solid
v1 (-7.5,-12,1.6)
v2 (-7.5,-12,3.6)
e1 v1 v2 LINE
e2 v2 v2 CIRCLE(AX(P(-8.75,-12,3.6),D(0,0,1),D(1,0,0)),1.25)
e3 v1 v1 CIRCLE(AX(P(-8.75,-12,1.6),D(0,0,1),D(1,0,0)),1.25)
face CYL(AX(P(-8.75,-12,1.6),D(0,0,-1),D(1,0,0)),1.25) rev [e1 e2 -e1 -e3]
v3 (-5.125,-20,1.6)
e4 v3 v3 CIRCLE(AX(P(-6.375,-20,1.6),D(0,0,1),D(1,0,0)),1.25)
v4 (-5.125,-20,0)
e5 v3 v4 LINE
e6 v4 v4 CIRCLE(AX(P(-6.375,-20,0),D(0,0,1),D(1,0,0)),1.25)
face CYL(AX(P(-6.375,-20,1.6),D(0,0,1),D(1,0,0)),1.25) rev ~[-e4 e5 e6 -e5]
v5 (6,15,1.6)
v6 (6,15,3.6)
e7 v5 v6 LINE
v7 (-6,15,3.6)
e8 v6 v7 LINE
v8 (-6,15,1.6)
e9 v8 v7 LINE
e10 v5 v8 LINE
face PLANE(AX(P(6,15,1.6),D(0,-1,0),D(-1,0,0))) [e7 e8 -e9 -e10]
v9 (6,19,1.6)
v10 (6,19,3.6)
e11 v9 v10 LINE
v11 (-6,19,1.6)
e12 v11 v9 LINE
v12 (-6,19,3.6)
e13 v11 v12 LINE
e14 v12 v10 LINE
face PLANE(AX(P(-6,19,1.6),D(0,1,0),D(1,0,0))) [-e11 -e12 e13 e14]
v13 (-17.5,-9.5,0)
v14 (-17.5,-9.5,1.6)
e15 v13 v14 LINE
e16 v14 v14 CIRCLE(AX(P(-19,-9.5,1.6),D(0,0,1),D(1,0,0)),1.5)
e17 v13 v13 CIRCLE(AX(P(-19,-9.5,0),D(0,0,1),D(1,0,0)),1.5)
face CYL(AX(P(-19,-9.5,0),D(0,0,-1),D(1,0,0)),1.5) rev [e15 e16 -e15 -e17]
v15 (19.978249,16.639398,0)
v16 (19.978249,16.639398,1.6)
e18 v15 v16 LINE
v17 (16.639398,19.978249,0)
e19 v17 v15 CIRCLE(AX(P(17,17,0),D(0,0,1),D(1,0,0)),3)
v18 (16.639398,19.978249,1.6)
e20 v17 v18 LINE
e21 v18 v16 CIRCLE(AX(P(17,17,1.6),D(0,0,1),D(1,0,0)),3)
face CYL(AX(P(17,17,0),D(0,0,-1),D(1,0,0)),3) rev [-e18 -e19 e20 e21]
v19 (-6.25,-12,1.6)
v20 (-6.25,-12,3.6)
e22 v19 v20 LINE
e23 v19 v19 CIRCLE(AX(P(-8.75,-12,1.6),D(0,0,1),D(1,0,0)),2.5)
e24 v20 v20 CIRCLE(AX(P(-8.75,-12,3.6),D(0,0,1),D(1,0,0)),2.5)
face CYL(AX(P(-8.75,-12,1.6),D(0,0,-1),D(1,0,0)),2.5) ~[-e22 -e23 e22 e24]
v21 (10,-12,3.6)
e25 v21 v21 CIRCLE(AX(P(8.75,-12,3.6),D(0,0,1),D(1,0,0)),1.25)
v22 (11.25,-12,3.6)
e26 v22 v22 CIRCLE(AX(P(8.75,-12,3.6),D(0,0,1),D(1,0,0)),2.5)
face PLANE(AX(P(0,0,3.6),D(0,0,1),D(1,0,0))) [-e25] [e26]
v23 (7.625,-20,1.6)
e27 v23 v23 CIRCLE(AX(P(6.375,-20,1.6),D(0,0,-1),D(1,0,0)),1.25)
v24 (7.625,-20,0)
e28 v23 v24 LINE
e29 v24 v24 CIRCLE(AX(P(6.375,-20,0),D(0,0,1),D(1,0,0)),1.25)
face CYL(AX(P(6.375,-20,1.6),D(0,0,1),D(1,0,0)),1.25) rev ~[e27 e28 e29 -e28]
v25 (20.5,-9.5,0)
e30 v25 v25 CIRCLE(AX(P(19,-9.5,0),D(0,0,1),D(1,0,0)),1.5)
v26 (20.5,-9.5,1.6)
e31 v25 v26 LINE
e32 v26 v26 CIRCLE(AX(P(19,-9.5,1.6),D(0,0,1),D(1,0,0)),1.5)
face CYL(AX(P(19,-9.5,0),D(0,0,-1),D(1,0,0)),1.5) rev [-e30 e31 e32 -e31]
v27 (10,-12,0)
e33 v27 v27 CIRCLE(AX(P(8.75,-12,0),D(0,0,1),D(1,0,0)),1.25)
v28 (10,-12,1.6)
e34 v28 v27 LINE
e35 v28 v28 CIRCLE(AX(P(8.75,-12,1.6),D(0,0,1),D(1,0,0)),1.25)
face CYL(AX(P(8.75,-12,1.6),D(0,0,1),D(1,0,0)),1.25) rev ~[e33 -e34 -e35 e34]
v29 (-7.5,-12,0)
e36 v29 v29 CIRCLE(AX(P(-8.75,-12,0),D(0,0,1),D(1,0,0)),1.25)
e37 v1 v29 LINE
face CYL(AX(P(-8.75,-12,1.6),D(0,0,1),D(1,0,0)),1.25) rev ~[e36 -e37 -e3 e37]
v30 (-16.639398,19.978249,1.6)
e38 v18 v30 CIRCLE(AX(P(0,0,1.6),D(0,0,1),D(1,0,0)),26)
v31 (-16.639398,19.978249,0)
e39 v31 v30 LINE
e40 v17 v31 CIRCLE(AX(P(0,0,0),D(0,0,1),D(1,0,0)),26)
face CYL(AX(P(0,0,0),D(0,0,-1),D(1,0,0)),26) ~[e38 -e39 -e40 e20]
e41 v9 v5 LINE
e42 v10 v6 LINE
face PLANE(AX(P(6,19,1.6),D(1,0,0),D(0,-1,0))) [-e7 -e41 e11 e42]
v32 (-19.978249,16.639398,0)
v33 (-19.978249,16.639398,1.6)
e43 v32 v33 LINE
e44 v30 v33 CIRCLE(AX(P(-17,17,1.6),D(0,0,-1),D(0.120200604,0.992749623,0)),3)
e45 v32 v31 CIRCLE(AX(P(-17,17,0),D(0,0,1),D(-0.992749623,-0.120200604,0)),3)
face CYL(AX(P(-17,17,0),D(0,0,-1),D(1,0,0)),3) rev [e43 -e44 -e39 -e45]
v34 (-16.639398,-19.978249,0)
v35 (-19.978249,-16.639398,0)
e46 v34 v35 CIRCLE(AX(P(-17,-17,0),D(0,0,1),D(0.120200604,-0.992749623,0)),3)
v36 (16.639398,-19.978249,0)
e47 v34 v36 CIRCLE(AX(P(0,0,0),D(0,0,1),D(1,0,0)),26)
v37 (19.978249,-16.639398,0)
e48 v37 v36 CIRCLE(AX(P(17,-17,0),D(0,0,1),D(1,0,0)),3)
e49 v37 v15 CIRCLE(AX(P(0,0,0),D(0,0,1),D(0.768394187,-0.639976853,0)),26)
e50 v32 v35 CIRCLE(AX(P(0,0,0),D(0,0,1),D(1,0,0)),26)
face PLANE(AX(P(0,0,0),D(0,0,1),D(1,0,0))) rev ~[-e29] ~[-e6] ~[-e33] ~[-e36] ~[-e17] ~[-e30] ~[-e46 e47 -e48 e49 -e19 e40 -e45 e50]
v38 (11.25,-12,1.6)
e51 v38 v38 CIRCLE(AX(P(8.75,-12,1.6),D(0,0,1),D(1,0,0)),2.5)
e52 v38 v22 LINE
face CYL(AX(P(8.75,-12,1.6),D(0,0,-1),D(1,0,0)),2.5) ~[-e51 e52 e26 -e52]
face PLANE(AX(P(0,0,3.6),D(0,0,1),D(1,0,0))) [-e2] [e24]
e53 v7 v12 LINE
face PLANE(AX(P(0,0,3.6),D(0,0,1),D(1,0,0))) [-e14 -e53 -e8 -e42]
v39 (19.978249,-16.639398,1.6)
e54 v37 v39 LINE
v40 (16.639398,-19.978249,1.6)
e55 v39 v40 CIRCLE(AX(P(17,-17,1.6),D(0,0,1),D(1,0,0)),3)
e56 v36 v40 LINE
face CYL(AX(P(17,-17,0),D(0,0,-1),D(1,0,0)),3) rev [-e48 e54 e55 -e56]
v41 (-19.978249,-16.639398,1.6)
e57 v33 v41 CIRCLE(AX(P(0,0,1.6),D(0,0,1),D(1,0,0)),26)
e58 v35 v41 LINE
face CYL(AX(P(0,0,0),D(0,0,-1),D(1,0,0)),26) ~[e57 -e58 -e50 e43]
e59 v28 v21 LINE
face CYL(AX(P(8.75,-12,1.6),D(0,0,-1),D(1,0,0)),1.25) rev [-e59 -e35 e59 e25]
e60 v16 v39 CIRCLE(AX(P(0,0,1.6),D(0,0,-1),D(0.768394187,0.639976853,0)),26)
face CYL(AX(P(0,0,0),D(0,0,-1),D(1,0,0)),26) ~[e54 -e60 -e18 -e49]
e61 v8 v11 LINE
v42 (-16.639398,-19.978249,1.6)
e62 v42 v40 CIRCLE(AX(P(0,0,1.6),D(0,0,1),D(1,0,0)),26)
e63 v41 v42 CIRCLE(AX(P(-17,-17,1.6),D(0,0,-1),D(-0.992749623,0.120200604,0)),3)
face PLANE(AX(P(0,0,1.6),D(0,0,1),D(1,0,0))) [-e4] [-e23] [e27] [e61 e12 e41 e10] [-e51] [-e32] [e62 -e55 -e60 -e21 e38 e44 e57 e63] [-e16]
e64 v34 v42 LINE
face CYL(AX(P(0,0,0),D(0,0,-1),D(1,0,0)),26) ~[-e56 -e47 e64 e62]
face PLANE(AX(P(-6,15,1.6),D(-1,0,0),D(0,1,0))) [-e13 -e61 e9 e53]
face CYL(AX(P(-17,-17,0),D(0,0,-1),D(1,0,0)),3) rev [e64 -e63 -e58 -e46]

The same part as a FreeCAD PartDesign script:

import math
import FreeCAD as App
import Part
import Sketcher
Q = App.Units.Quantity


def add_polygon(sketch, points):
    """Adds a closed chain of lines whose ends are joined by coincident constraints."""
    first, n = sketch.GeometryCount, len(points)
    for a, b in zip(points, points[1:] + points[:1]):
        sketch.addGeometry(Part.LineSegment(App.Vector(*a, 0), App.Vector(*b, 0)), False)
    for i in range(n):
        sketch.addConstraint(Sketcher.Constraint("Coincident", first + i, 2, first + (i + 1) % n, 1))

doc = App.newDocument("Part")
body = doc.addObject("PartDesign::Body", "Body")

sketch1 = body.newObject("Sketcher::SketchObject", "Sketch")
sketch1.AttachmentSupport = (doc.getObject("XY_Plane"), [""])
sketch1.MapMode = "FlatFace"
sketch1.addGeometry([
    Part.ArcOfCircle(Part.Circle(App.Vector(17, -17, 0), App.Vector(0, 0, 1), 3), math.radians(6.90368), math.radians(263.09632)),
    Part.ArcOfCircle(Part.Circle(App.Vector(0, 0, 0), App.Vector(0, 0, 1), 26), math.radians(-39.790094), math.radians(39.790094)),
    Part.ArcOfCircle(Part.Circle(App.Vector(17, 17, 0), App.Vector(0, 0, 1), 3), math.radians(96.90368), math.radians(353.09632)),
    Part.ArcOfCircle(Part.Circle(App.Vector(0, 0, 0), App.Vector(0, 0, 1), 26), math.radians(50.209906), math.radians(129.790094)),
    Part.ArcOfCircle(Part.Circle(App.Vector(-17, 17, 0), App.Vector(0, 0, 1), 3), math.radians(-173.09632), math.radians(83.09632)),
    Part.ArcOfCircle(Part.Circle(App.Vector(0, 0, 0), App.Vector(0, 0, 1), 26), math.radians(140.209906), math.radians(219.790094)),
    Part.ArcOfCircle(Part.Circle(App.Vector(-17, -17, 0), App.Vector(0, 0, 1), 3), math.radians(-83.09632), math.radians(173.09632)),
    Part.ArcOfCircle(Part.Circle(App.Vector(0, 0, 0), App.Vector(0, 0, 1), 26), math.radians(-129.790094), math.radians(-50.209906)),
    Part.Circle(App.Vector(-19, -9.5, 0), App.Vector(0, 0, 1), 1.5),
    Part.Circle(App.Vector(19, -9.5, 0), App.Vector(0, 0, 1), 1.5),
], False)
sketch1.addConstraint([
    Sketcher.Constraint("Coincident", 0, 1, 1, 1),
    Sketcher.Constraint("Coincident", 1, 2, 2, 2),
    Sketcher.Constraint("Coincident", 2, 1, 3, 1),
    Sketcher.Constraint("Coincident", 3, 2, 4, 2),
    Sketcher.Constraint("Coincident", 4, 1, 5, 1),
    Sketcher.Constraint("Coincident", 5, 2, 6, 2),
    Sketcher.Constraint("Coincident", 6, 1, 7, 1),
    Sketcher.Constraint("Coincident", 7, 2, 0, 2),
    Sketcher.Constraint("Coincident", 1, 3, -1, 1),
    Sketcher.Constraint("Coincident", 3, 3, -1, 1),
    Sketcher.Constraint("Coincident", 5, 3, -1, 1),
    Sketcher.Constraint("Coincident", 7, 3, -1, 1),
    Sketcher.Constraint("Equal", 0, 2),
    Sketcher.Constraint("Equal", 1, 3),
    Sketcher.Constraint("Equal", 2, 4),
    Sketcher.Constraint("Equal", 3, 5),
    Sketcher.Constraint("Equal", 4, 6),
    Sketcher.Constraint("Equal", 5, 7),
    Sketcher.Constraint("Equal", 8, 9),
    Sketcher.Constraint("Symmetric", 0, 3, 4, 3, -1, 1),
    Sketcher.Constraint("Symmetric", 2, 3, 6, 3, -1, 1),
    Sketcher.Constraint("Symmetric", 2, 3, 4, 3, -2),
    Sketcher.Constraint("Symmetric", 8, 3, 9, 3, -2),
    Sketcher.Constraint("Diameter", 8, Q("3 mm")),
    Sketcher.Constraint("Radius", 0, Q("3 mm")),
    Sketcher.Constraint("Radius", 1, Q("26 mm")),
    Sketcher.Constraint("DistanceY", 0, 3, 2, 3, Q("34 mm")),
    Sketcher.Constraint("DistanceX", 4, 3, 2, 3, Q("34 mm")),
    Sketcher.Constraint("DistanceY", 6, 3, 8, 3, Q("7.5 mm")),
    Sketcher.Constraint("DistanceX", 8, 3, -1, 1, Q("19 mm")),
])
pad1 = body.newObject("PartDesign::Pad", "Pad")
pad1.Profile = sketch1
pad1.Length = 1.6

sketch2 = body.newObject("Sketcher::SketchObject", "Sketch001")
sketch2.AttachmentSupport = (doc.getObject("XY_Plane"), [""])
sketch2.MapMode = "FlatFace"
sketch2.AttachmentOffset = App.Placement(App.Vector(0, 0, 1.6), App.Rotation())
add_polygon(sketch2, [(6, 15), (6, 19), (-6, 19), (-6, 15)])
sketch2.addGeometry(Part.Circle(App.Vector(8.75, -12, 0), App.Vector(0, 0, 1), 2.5), False)
sketch2.addGeometry(Part.Circle(App.Vector(8.75, -12, 0), App.Vector(0, 0, 1), 1.25), False)
sketch2.addGeometry(Part.Circle(App.Vector(-8.75, -12, 0), App.Vector(0, 0, 1), 2.5), False)
sketch2.addGeometry(Part.Circle(App.Vector(-8.75, -12, 0), App.Vector(0, 0, 1), 1.25), False)
sketch2.addConstraint([
    Sketcher.Constraint("Vertical", 0),
    Sketcher.Constraint("Horizontal", 1),
    Sketcher.Constraint("Vertical", 2),
    Sketcher.Constraint("Horizontal", 3),
    Sketcher.Constraint("Coincident", 5, 3, 4, 3),
    Sketcher.Constraint("Coincident", 7, 3, 6, 3),
    Sketcher.Constraint("Equal", 4, 6),
    Sketcher.Constraint("Equal", 5, 7),
    Sketcher.Constraint("Symmetric", 4, 3, 6, 3, -2),
    Sketcher.Constraint("Diameter", 4, Q("5 mm")),
    Sketcher.Constraint("Diameter", 5, Q("2.5 mm")),
    Sketcher.Constraint("DistanceX", 1, 2, 1, 1, Q("12 mm")),
    Sketcher.Constraint("DistanceY", 0, 1, 0, 2, Q("4 mm")),
    Sketcher.Constraint("DistanceY", 4, 3, -1, 1, Q("12 mm")),
    Sketcher.Constraint("DistanceX", 6, 3, 4, 3, Q("17.5 mm")),
    Sketcher.Constraint("DistanceX", -1, 1, 0, 2, Q("6 mm")),
    Sketcher.Constraint("DistanceY", -1, 1, 0, 2, Q("19 mm")),
])
pad2 = body.newObject("PartDesign::Pad", "Pad001")
pad2.Profile = sketch2
pad2.Length = 2

sketch3 = body.newObject("Sketcher::SketchObject", "Sketch002")
sketch3.AttachmentSupport = (doc.getObject("XY_Plane"), [""])
sketch3.MapMode = "FlatFace"
sketch3.AttachmentOffset = App.Placement(App.Vector(0, 0, 1.6), App.Rotation())
sketch3.addGeometry([
    Part.Circle(App.Vector(8.75, -12, 0), App.Vector(0, 0, 1), 1.25),
    Part.Circle(App.Vector(-8.75, -12, 0), App.Vector(0, 0, 1), 1.25),
], False)
sketch3.addConstraint([
    Sketcher.Constraint("Equal", 0, 1),
    Sketcher.Constraint("Symmetric", 0, 3, 1, 3, -2),
    Sketcher.Constraint("Diameter", 0, Q("2.5 mm")),
    Sketcher.Constraint("DistanceY", 0, 3, -1, 1, Q("12 mm")),
    Sketcher.Constraint("DistanceX", 1, 3, 0, 3, Q("17.5 mm")),
])
pocket1 = body.newObject("PartDesign::Pocket", "Pocket")
pocket1.Profile = sketch3
pocket1.Length = 2

sketch4 = body.newObject("Sketcher::SketchObject", "Sketch003")
sketch4.AttachmentSupport = (doc.getObject("XY_Plane"), [""])
sketch4.MapMode = "FlatFace"
sketch4.AttachmentOffset = App.Placement(App.Vector(0, 0, 1.6), App.Rotation())
sketch4.addGeometry([
    Part.Circle(App.Vector(6.375, -20, 0), App.Vector(0, 0, 1), 1.25),
    Part.Circle(App.Vector(-6.375, -20, 0), App.Vector(0, 0, 1), 1.25),
], False)
sketch4.addConstraint([
    Sketcher.Constraint("Equal", 0, 1),
    Sketcher.Constraint("Symmetric", 0, 3, 1, 3, -2),
    Sketcher.Constraint("Diameter", 0, Q("2.5 mm")),
    Sketcher.Constraint("DistanceX", 1, 3, 0, 3, Q("12.75 mm")),
    Sketcher.Constraint("DistanceY", 0, 3, -1, 1, Q("20 mm")),
])
pocket2 = body.newObject("PartDesign::Pocket", "Pocket001")
pocket2.Profile = sketch4
pocket2.Type = "ThroughAll"

doc.recompute()
